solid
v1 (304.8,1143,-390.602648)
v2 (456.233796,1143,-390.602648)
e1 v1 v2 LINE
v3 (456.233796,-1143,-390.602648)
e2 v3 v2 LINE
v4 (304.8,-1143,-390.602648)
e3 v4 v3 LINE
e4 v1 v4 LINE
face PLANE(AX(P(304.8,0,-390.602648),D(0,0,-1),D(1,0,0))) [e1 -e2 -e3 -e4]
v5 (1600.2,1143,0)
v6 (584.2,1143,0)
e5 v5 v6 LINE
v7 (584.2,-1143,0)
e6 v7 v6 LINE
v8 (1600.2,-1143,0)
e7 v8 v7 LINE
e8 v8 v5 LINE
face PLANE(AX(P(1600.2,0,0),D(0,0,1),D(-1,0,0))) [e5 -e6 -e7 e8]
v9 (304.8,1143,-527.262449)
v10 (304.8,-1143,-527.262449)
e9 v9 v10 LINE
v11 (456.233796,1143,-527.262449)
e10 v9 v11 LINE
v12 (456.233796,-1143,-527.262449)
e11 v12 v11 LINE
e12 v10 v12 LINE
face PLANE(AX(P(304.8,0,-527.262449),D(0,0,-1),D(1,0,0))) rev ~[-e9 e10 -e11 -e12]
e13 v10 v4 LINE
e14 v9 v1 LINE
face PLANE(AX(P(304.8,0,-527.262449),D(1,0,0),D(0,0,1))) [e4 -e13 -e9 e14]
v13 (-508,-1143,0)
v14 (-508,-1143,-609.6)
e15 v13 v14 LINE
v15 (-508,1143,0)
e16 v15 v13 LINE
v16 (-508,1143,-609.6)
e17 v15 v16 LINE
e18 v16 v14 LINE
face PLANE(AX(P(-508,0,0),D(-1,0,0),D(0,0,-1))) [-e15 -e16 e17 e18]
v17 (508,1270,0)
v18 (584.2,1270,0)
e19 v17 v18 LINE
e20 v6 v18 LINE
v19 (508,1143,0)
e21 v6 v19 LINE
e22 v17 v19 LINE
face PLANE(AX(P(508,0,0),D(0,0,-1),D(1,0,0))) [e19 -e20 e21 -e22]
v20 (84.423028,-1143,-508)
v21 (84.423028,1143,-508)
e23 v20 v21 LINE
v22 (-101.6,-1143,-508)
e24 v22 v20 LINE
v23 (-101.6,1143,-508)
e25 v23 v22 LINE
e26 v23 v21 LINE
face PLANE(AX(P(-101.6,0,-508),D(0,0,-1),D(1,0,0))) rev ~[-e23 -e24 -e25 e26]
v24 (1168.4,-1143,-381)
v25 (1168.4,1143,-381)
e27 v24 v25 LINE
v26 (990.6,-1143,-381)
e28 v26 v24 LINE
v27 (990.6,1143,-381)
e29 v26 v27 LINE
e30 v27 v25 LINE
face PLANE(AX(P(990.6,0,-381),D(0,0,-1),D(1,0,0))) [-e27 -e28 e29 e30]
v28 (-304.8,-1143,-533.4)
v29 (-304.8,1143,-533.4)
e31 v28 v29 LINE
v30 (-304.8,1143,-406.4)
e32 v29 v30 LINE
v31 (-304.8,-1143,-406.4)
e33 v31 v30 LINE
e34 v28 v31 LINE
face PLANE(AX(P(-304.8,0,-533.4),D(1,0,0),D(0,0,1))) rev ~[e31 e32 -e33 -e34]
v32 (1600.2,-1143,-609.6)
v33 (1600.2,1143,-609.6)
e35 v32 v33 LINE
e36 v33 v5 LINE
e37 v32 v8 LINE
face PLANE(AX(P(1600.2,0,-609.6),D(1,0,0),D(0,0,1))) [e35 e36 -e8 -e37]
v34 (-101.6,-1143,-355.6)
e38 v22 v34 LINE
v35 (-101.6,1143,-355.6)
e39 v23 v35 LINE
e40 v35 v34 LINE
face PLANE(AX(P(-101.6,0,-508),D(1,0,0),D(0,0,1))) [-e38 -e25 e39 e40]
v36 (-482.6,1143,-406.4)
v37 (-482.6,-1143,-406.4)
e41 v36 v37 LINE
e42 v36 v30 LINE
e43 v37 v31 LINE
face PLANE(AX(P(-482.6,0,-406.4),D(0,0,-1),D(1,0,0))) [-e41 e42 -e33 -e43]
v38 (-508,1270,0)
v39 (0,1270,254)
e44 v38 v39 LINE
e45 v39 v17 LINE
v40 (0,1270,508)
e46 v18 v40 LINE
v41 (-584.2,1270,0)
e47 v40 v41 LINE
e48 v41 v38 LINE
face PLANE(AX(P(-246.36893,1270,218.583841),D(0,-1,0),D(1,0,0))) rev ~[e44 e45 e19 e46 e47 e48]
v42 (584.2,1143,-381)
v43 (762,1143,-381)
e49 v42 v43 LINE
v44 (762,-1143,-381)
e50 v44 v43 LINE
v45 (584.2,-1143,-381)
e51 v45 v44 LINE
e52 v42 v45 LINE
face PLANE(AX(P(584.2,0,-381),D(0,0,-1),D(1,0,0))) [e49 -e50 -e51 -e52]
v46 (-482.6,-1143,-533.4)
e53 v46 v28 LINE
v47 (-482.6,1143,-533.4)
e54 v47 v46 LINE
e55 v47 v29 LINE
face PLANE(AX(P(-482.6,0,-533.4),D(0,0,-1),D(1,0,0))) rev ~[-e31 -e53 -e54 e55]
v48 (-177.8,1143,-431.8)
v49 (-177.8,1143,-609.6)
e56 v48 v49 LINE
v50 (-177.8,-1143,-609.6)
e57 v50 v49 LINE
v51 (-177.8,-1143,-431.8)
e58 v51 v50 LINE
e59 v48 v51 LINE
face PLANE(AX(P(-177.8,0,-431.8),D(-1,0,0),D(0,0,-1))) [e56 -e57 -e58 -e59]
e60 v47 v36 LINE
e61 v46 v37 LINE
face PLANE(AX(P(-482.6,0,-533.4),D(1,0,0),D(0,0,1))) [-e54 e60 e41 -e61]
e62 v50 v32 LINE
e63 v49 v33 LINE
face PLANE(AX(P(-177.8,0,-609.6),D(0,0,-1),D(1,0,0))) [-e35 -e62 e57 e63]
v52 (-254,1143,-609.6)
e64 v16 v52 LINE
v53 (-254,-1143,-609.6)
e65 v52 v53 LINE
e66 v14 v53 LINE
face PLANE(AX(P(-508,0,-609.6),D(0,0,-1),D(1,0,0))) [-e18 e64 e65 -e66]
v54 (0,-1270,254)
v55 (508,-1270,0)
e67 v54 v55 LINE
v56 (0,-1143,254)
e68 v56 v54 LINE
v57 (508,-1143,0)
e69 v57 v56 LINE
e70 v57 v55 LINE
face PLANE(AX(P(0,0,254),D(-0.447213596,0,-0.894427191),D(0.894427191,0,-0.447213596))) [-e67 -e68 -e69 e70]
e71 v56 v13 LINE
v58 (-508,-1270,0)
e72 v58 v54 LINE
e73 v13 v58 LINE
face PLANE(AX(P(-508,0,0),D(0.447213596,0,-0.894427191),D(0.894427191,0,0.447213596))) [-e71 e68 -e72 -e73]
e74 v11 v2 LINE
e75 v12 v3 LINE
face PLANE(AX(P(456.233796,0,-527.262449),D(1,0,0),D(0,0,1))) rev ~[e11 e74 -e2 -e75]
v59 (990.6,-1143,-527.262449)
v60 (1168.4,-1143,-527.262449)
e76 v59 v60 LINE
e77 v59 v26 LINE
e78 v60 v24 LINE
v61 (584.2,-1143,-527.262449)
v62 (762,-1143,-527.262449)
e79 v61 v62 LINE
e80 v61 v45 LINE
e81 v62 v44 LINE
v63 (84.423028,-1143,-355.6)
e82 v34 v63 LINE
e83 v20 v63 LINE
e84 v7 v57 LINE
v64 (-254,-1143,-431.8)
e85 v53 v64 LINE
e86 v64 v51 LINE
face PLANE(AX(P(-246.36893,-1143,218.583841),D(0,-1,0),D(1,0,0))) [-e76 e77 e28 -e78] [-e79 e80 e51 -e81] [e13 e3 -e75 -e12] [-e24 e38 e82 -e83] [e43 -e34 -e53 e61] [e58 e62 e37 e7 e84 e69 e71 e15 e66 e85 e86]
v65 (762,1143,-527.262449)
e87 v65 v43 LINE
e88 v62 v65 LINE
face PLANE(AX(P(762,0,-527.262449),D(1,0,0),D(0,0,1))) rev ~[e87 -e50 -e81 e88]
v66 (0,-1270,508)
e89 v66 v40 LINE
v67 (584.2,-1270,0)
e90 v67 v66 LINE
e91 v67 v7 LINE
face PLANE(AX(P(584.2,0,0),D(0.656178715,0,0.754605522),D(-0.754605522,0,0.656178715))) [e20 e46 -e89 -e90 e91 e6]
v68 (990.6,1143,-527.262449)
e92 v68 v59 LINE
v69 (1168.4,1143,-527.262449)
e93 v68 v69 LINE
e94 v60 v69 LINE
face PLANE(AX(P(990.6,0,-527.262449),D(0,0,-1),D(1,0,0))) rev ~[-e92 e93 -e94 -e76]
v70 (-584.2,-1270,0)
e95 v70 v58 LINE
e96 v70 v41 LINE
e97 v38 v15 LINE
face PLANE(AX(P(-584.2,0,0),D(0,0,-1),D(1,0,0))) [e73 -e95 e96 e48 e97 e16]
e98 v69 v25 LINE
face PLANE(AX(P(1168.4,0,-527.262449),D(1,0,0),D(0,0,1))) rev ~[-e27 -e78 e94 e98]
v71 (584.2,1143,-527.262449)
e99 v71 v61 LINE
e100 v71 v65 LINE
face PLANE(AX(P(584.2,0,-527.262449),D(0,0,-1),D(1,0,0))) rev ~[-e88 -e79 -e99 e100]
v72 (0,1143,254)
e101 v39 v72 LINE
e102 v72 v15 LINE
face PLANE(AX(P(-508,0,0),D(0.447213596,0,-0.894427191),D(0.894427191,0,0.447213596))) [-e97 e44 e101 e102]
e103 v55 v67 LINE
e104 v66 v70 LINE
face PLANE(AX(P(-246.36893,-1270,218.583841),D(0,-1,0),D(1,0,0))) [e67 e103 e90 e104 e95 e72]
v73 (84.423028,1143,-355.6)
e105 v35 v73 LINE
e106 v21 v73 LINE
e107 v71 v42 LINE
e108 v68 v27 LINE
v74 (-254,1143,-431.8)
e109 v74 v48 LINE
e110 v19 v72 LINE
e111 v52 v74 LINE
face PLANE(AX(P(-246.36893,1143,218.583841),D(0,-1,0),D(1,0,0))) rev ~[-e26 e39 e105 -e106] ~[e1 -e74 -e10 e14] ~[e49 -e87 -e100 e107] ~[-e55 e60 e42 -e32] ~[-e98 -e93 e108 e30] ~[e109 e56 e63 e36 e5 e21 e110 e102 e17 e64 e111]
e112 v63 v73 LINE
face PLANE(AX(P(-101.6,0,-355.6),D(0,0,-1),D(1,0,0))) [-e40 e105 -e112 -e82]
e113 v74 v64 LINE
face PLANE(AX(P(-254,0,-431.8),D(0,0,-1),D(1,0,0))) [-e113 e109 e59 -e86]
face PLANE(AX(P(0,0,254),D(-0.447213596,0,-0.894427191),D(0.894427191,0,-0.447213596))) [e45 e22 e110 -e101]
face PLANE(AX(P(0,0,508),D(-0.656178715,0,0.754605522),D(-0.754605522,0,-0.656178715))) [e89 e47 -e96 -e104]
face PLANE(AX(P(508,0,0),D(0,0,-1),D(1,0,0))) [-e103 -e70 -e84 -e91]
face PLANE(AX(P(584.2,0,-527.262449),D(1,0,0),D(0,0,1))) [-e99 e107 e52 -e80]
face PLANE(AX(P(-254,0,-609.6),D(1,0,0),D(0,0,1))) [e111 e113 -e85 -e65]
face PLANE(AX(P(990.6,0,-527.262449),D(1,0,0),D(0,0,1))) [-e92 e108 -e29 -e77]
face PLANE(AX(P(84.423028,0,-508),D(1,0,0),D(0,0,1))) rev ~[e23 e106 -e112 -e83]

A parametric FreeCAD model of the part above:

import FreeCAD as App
import Part
import Sketcher
from FreeCAD import Vector
Q = App.Units.Quantity

doc = App.newDocument("Part")
params = doc.addObject("Spreadsheet::Sheet", "Params")
for row, (alias, value) in enumerate([
    ("sketch1_width", "3 in"),
    ("pad1_length", "100 in"),
    ("sketch2_width", "3 in"),
    ("sketch2_width2", "10 in"),
    ("sketch2_width3", "70 in"),
    ("sketch2_width4", "40 in"),
    ("sketch2_width5", "7 in"),
    ("pad2_length", "90 in"),
], start=1):
    params.set(f"A{row}", alias)
    params.set(f"B{row}", "=" + value)
    params.setAlias(f"B{row}", alias)

body = doc.addObject("PartDesign::Body", "Body")

# Sketch on XZ plane
sketch1 = body.newObject("Sketcher::SketchObject", "Sketch")
sketch1.AttachmentSupport = (doc.getObject("XZ_Plane"), [""])
sketch1.MapMode = "FlatFace"
sketch1.addGeometry(Part.LineSegment(Vector(-584.2, 0, 0), Vector(-508, 0, 0)), False)
sketch1.addGeometry(Part.LineSegment(Vector(-508, 0, 0), Vector(0, 254, 0)), False)
sketch1.addGeometry(Part.LineSegment(Vector(0, 254, 0), Vector(508, 0, 0)), False)
sketch1.addGeometry(Part.LineSegment(Vector(508, 0, 0), Vector(584.2, 0, 0)), False)
sketch1.addGeometry(Part.LineSegment(Vector(584.2, 0, 0), Vector(0, 508, 0)), False)
sketch1.addGeometry(Part.LineSegment(Vector(0, 508, 0), Vector(-584.2, 0, 0)), False)
sketch1.addConstraint(Sketcher.Constraint("Coincident", 0, 2, 1, 1))
sketch1.addConstraint(Sketcher.Constraint("Coincident", 1, 2, 2, 1))
sketch1.addConstraint(Sketcher.Constraint("Coincident", 2, 2, 3, 1))
sketch1.addConstraint(Sketcher.Constraint("Coincident", 3, 2, 4, 1))
sketch1.addConstraint(Sketcher.Constraint("Coincident", 4, 2, 5, 1))
sketch1.addConstraint(Sketcher.Constraint("Coincident", 5, 2, 0, 1))
sketch1.addConstraint(Sketcher.Constraint("Horizontal", 0))
sketch1.addConstraint(Sketcher.Constraint("Horizontal", 3))
sketch1.addConstraint(Sketcher.Constraint("Symmetric", 0, 2, 2, 2, -1, 1))
sketch1.addConstraint(Sketcher.Constraint("Symmetric", 3, 2, 5, 2, -2))
sketch1.addConstraint(Sketcher.Constraint("PointOnObject", 1, 2, -2))
sketch1.addConstraint(Sketcher.Constraint("PointOnObject", 4, 2, -2))
sketch1.addConstraint(Sketcher.Constraint("DistanceX", 0, 1, 0, 2, Q("3 in")))
sketch1.addConstraint(Sketcher.Constraint("DistanceX", 0, 2, -1, 1, Q("20 in")))
sketch1.addConstraint(Sketcher.Constraint("DistanceY", -1, 1, 1, 2, Q("10 in")))
sketch1.addConstraint(Sketcher.Constraint("DistanceY", -1, 1, 4, 2, Q("20 in")))
sketch1.setExpression("Constraints[12]", "Params.sketch1_width")
pad1 = body.newObject("PartDesign::Pad", "Pad")
pad1.Profile = sketch1
pad1.setExpression("Length", "Params.pad1_length")
pad1.Midplane = True

# Sketch on XZ plane
sketch2 = body.newObject("Sketcher::SketchObject", "Sketch001")
sketch2.AttachmentSupport = (doc.getObject("XZ_Plane"), [""])
sketch2.MapMode = "FlatFace"
sketch2.addGeometry(Part.LineSegment(Vector(-584.2, 0, 0), Vector(-508, 0, 0)), False)
sketch2.addGeometry(Part.LineSegment(Vector(-508, 0, 0), Vector(-508, -609.6, 0)), False)
sketch2.addGeometry(Part.LineSegment(Vector(-508, -609.6, 0), Vector(-254, -609.6, 0)), False)
sketch2.addGeometry(Part.LineSegment(Vector(-254, -609.6, 0), Vector(-254, -431.8, 0)), False)
sketch2.addGeometry(Part.LineSegment(Vector(-254, -431.8, 0), Vector(-177.8, -431.8, 0)), False)
sketch2.addGeometry(Part.LineSegment(Vector(-177.8, -431.8, 0), Vector(-177.8, -609.6, 0)), False)
sketch2.addGeometry(Part.LineSegment(Vector(-177.8, -609.6, 0), Vector(1600.2, -609.6, 0)), False)
sketch2.addGeometry(Part.LineSegment(Vector(1600.2, -609.6, 0), Vector(1600.2, 0, 0)), False)
sketch2.addGeometry(Part.LineSegment(Vector(1600.2, 0, 0), Vector(584.2, 0, 0)), False)
sketch2.addGeometry(Part.LineSegment(Vector(584.2, 0, 0), Vector(0, 508, 0)), False)
sketch2.addGeometry(Part.LineSegment(Vector(0, 508, 0), Vector(-584.2, 0, 0)), False)
sketch2.addGeometry(Part.LineSegment(Vector(-304.8, -533.4, 0), Vector(-482.6, -533.4, 0)), False)
sketch2.addGeometry(Part.LineSegment(Vector(-482.6, -533.4, 0), Vector(-482.6, -406.4, 0)), False)
sketch2.addGeometry(Part.LineSegment(Vector(-482.6, -406.4, 0), Vector(-304.8, -406.4, 0)), False)
sketch2.addGeometry(Part.LineSegment(Vector(-304.8, -406.4, 0), Vector(-304.8, -533.4, 0)), False)
sketch2.addGeometry(Part.LineSegment(Vector(456.233796, -527.262449, 0), Vector(304.8, -527.262449, 0)), False)
sketch2.addGeometry(Part.LineSegment(Vector(304.8, -527.262449, 0), Vector(304.8, -390.602648, 0)), False)
sketch2.addGeometry(Part.LineSegment(Vector(304.8, -390.602648, 0), Vector(456.233796, -390.602648, 0)), False)
sketch2.addGeometry(Part.LineSegment(Vector(456.233796, -390.602648, 0), Vector(456.233796, -527.262449, 0)), False)
sketch2.addGeometry(Part.LineSegment(Vector(762, -527.262449, 0), Vector(584.2, -527.262449, 0)), False)
sketch2.addGeometry(Part.LineSegment(Vector(584.2, -527.262449, 0), Vector(584.2, -381, 0)), False)
sketch2.addGeometry(Part.LineSegment(Vector(584.2, -381, 0), Vector(762, -381, 0)), False)
sketch2.addGeometry(Part.LineSegment(Vector(762, -381, 0), Vector(762, -527.262449, 0)), False)
sketch2.addGeometry(Part.LineSegment(Vector(1168.4, -527.262449, 0), Vector(990.6, -527.262449, 0)), False)
sketch2.addGeometry(Part.LineSegment(Vector(990.6, -527.262449, 0), Vector(990.6, -381, 0)), False)
sketch2.addGeometry(Part.LineSegment(Vector(990.6, -381, 0), Vector(1168.4, -381, 0)), False)
sketch2.addGeometry(Part.LineSegment(Vector(1168.4, -381, 0), Vector(1168.4, -527.262449, 0)), False)
sketch2.addGeometry(Part.LineSegment(Vector(84.423028, -508, 0), Vector(-101.6, -508, 0)), False)
sketch2.addGeometry(Part.LineSegment(Vector(-101.6, -508, 0), Vector(-101.6, -355.6, 0)), False)
sketch2.addGeometry(Part.LineSegment(Vector(-101.6, -355.6, 0), Vector(84.423028, -355.6, 0)), False)
sketch2.addGeometry(Part.LineSegment(Vector(84.423028, -355.6, 0), Vector(84.423028, -508, 0)), False)
sketch2.addConstraint(Sketcher.Constraint("Coincident", 0, 2, 1, 1))
sketch2.addConstraint(Sketcher.Constraint("Coincident", 1, 2, 2, 1))
sketch2.addConstraint(Sketcher.Constraint("Coincident", 2, 2, 3, 1))
sketch2.addConstraint(Sketcher.Constraint("Coincident", 3, 2, 4, 1))
sketch2.addConstraint(Sketcher.Constraint("Coincident", 4, 2, 5, 1))
sketch2.addConstraint(Sketcher.Constraint("Coincident", 5, 2, 6, 1))
sketch2.addConstraint(Sketcher.Constraint("Coincident", 6, 2, 7, 1))
sketch2.addConstraint(Sketcher.Constraint("Coincident", 7, 2, 8, 1))
sketch2.addConstraint(Sketcher.Constraint("Coincident", 8, 2, 9, 1))
sketch2.addConstraint(Sketcher.Constraint("Coincident", 9, 2, 10, 1))
sketch2.addConstraint(Sketcher.Constraint("Coincident", 10, 2, 0, 1))
sketch2.addConstraint(Sketcher.Constraint("Coincident", 11, 2, 12, 1))
sketch2.addConstraint(Sketcher.Constraint("Coincident", 12, 2, 13, 1))
sketch2.addConstraint(Sketcher.Constraint("Coincident", 13, 2, 14, 1))
sketch2.addConstraint(Sketcher.Constraint("Coincident", 14, 2, 11, 1))
sketch2.addConstraint(Sketcher.Constraint("Coincident", 15, 2, 16, 1))
sketch2.addConstraint(Sketcher.Constraint("Coincident", 16, 2, 17, 1))
sketch2.addConstraint(Sketcher.Constraint("Coincident", 17, 2, 18, 1))
sketch2.addConstraint(Sketcher.Constraint("Coincident", 18, 2, 15, 1))
sketch2.addConstraint(Sketcher.Constraint("Coincident", 19, 2, 20, 1))
sketch2.addConstraint(Sketcher.Constraint("Coincident", 20, 2, 21, 1))
sketch2.addConstraint(Sketcher.Constraint("Coincident", 21, 2, 22, 1))
sketch2.addConstraint(Sketcher.Constraint("Coincident", 22, 2, 19, 1))
sketch2.addConstraint(Sketcher.Constraint("Coincident", 23, 2, 24, 1))
sketch2.addConstraint(Sketcher.Constraint("Coincident", 24, 2, 25, 1))
sketch2.addConstraint(Sketcher.Constraint("Coincident", 25, 2, 26, 1))
sketch2.addConstraint(Sketcher.Constraint("Coincident", 26, 2, 23, 1))
sketch2.addConstraint(Sketcher.Constraint("Coincident", 27, 2, 28, 1))
sketch2.addConstraint(Sketcher.Constraint("Coincident", 28, 2, 29, 1))
sketch2.addConstraint(Sketcher.Constraint("Coincident", 29, 2, 30, 1))
sketch2.addConstraint(Sketcher.Constraint("Coincident", 30, 2, 27, 1))
sketch2.addConstraint(Sketcher.Constraint("Horizontal", 0))
sketch2.addConstraint(Sketcher.Constraint("Vertical", 1))
sketch2.addConstraint(Sketcher.Constraint("Horizontal", 2))
sketch2.addConstraint(Sketcher.Constraint("Vertical", 3))
sketch2.addConstraint(Sketcher.Constraint("Horizontal", 4))
sketch2.addConstraint(Sketcher.Constraint("Vertical", 5))
sketch2.addConstraint(Sketcher.Constraint("Horizontal", 6))
sketch2.addConstraint(Sketcher.Constraint("Vertical", 7))
sketch2.addConstraint(Sketcher.Constraint("Horizontal", 8))
sketch2.addConstraint(Sketcher.Constraint("Horizontal", 11))
sketch2.addConstraint(Sketcher.Constraint("Vertical", 12))
sketch2.addConstraint(Sketcher.Constraint("Horizontal", 13))
sketch2.addConstraint(Sketcher.Constraint("Vertical", 14))
sketch2.addConstraint(Sketcher.Constraint("Horizontal", 15))
sketch2.addConstraint(Sketcher.Constraint("Vertical", 16))
sketch2.addConstraint(Sketcher.Constraint("Horizontal", 17))
sketch2.addConstraint(Sketcher.Constraint("Vertical", 18))
sketch2.addConstraint(Sketcher.Constraint("Horizontal", 19))
sketch2.addConstraint(Sketcher.Constraint("Vertical", 20))
sketch2.addConstraint(Sketcher.Constraint("Horizontal", 21))
sketch2.addConstraint(Sketcher.Constraint("Vertical", 22))
sketch2.addConstraint(Sketcher.Constraint("Horizontal", 23))
sketch2.addConstraint(Sketcher.Constraint("Vertical", 24))
sketch2.addConstraint(Sketcher.Constraint("Horizontal", 25))
sketch2.addConstraint(Sketcher.Constraint("Vertical", 26))
sketch2.addConstraint(Sketcher.Constraint("Horizontal", 27))
sketch2.addConstraint(Sketcher.Constraint("Vertical", 28))
sketch2.addConstraint(Sketcher.Constraint("Horizontal", 29))
sketch2.addConstraint(Sketcher.Constraint("Vertical", 30))
sketch2.addConstraint(Sketcher.Constraint("Symmetric", 8, 2, 10, 2, -1, 1))
sketch2.addConstraint(Sketcher.Constraint("PointOnObject", 0, 2, -1))
sketch2.addConstraint(Sketcher.Constraint("PointOnObject", 9, 2, -2))
sketch2.addConstraint(Sketcher.Constraint("Horizontal", 2, 2, 5, 2))
sketch2.addConstraint(Sketcher.Constraint("Horizontal", 18, 2, 19, 2))
sketch2.addConstraint(Sketcher.Constraint("Horizontal", 22, 2, 23, 2))
sketch2.addConstraint(Sketcher.Constraint("Horizontal", 21, 2, 24, 2))
sketch2.addConstraint(Sketcher.Constraint("Vertical", 8, 2, 19, 2))
sketch2.addConstraint(Sketcher.Constraint("Equal", 0, 4))
sketch2.addConstraint(Sketcher.Constraint("Equal", 13, 19))
sketch2.addConstraint(Sketcher.Constraint("Equal", 21, 23))
sketch2.addConstraint(Sketcher.Constraint("Equal", 25, 3))
sketch2.addConstraint(Sketcher.Constraint("DistanceX", 0, 1, 0, 2, Q("3 in")))
sketch2.addConstraint(Sketcher.Constraint("DistanceX", 2, 1, 2, 2, Q("10 in")))
sketch2.addConstraint(Sketcher.Constraint("DistanceX", 6, 1, 6, 2, Q("70 in")))
sketch2.addConstraint(Sketcher.Constraint("DistanceX", 8, 2, 8, 1, Q("40 in")))
sketch2.addConstraint(Sketcher.Constraint("DistanceX", 11, 2, 11, 1, Q("7 in")))
sketch2.addConstraint(Sketcher.Constraint("DistanceY", 1, 2, 1, 1, Q("24 in")))
sketch2.addConstraint(Sketcher.Constraint("DistanceY", 12, 1, 12, 2, Q("5 in")))
sketch2.addConstraint(Sketcher.Constraint("DistanceY", 28, 1, 28, 2, Q("6 in")))
sketch2.addConstraint(Sketcher.Constraint("DistanceY", -1, 1, 9, 2, Q("20 in")))
sketch2.addConstraint(Sketcher.Constraint("DistanceX", 11, 2, -1, 1, Q("19 in")))
sketch2.addConstraint(Sketcher.Constraint("DistanceY", 11, 2, -1, 1, Q("21 in")))
sketch2.addConstraint(Sketcher.Constraint("DistanceX", -1, 1, 15, 2, Q("12 in")))
sketch2.addConstraint(Sketcher.Constraint("DistanceY", 20, 2, -1, 1, Q("15 in")))
sketch2.addConstraint(Sketcher.Constraint("DistanceX", -1, 1, 23, 2, Q("39 in")))
sketch2.addConstraint(Sketcher.Constraint("DistanceX", 27, 2, -1, 1, Q("4 in")))
sketch2.addConstraint(Sketcher.Constraint("DistanceY", 27, 2, -1, 1, Q("20 in")))
sketch2.addConstraint(Sketcher.Constraint("DistanceY", 16, 1, 16, 2, 136.659801))
sketch2.addConstraint(Sketcher.Constraint("DistanceY", 20, 1, 20, 2, 146.262449))
sketch2.addConstraint(Sketcher.Constraint("DistanceX", 15, 2, 15, 1, 151.433796))
sketch2.addConstraint(Sketcher.Constraint("DistanceX", 27, 2, 27, 1, 186.023028))
sketch2.setExpression("Constraints[72]", "Params.sketch2_width")
sketch2.setExpression("Constraints[73]", "Params.sketch2_width2")
sketch2.setExpression("Constraints[74]", "Params.sketch2_width3")
sketch2.setExpression("Constraints[75]", "Params.sketch2_width4")
sketch2.setExpression("Constraints[76]", "Params.sketch2_width5")
pad2 = body.newObject("PartDesign::Pad", "Pad001")
pad2.Profile = sketch2
pad2.setExpression("Length", "Params.pad2_length")
pad2.Midplane = True

doc.recompute()
